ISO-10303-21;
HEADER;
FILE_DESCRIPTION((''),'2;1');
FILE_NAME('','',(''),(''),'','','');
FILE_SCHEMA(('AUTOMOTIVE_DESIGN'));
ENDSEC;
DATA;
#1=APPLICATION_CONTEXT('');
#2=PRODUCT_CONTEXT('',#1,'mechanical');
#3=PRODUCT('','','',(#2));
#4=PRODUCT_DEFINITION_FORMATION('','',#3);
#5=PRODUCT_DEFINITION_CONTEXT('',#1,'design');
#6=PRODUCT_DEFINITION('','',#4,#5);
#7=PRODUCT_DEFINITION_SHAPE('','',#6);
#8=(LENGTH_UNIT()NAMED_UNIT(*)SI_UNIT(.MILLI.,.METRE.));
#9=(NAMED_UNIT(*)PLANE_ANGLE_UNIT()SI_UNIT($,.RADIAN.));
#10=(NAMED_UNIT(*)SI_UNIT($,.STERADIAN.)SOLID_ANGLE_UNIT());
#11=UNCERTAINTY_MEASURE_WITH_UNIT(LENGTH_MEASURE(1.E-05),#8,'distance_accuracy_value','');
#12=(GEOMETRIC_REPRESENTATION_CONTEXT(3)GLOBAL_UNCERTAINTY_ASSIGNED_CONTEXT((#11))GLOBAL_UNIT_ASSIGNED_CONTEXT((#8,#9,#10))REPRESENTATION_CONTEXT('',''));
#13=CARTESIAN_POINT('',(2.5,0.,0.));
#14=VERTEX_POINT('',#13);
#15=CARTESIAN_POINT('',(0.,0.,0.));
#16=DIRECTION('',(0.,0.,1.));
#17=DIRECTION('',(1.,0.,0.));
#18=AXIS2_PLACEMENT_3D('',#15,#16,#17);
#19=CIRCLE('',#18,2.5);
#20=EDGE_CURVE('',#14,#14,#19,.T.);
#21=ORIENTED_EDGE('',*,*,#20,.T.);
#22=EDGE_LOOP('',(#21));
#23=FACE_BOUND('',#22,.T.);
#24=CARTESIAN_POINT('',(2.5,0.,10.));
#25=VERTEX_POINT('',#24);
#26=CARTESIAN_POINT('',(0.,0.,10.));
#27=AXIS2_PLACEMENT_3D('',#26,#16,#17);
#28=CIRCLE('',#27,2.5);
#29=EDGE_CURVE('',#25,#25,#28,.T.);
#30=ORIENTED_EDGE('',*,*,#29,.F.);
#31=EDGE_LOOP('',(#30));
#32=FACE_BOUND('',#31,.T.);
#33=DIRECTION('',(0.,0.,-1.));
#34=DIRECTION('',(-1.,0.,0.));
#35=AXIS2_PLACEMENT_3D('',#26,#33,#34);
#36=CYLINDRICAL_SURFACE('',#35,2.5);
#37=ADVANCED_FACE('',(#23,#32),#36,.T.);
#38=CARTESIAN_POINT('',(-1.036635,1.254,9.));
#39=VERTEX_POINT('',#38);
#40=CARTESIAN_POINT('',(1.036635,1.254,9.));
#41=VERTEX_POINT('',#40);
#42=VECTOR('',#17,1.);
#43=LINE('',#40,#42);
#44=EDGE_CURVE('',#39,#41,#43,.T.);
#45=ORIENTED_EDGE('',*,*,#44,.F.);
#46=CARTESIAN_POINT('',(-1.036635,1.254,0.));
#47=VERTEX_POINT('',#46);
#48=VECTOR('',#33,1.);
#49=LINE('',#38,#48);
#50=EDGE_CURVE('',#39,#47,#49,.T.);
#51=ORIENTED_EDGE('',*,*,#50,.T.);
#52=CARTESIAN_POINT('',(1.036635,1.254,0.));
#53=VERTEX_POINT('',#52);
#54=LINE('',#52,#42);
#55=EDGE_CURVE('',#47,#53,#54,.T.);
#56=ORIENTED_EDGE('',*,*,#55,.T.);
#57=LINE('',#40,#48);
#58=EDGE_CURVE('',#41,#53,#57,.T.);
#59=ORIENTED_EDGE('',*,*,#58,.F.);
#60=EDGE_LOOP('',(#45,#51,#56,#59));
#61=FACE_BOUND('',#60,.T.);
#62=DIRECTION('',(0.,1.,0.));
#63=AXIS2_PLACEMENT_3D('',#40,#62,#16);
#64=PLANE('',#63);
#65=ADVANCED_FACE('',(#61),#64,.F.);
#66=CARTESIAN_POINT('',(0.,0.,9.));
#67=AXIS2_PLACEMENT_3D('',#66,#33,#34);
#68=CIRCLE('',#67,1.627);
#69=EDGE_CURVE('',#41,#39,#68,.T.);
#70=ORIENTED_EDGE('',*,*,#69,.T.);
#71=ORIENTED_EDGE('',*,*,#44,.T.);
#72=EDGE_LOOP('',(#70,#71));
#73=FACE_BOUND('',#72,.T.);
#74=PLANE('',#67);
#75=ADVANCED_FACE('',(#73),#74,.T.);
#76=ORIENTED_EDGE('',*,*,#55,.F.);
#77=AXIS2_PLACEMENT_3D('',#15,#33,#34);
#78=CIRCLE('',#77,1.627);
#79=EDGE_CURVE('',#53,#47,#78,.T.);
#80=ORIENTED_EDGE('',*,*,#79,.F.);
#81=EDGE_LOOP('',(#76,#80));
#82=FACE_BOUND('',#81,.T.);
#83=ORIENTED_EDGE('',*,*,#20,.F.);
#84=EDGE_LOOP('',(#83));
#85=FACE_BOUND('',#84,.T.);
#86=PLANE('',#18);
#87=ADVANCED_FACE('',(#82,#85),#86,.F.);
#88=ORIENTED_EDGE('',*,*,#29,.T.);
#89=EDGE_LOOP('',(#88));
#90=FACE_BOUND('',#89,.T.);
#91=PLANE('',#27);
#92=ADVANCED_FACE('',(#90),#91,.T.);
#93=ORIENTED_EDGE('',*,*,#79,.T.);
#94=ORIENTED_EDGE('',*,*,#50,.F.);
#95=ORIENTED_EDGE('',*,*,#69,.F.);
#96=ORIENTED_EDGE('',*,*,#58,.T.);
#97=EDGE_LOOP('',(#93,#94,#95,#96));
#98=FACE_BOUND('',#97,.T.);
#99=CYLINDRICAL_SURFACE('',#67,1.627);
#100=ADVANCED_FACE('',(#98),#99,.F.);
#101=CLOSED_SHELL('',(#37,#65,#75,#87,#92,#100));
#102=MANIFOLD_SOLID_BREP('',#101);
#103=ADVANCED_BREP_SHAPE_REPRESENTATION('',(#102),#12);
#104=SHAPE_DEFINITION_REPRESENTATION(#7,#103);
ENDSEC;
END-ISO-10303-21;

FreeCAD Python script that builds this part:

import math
import FreeCAD as App
import Part
import Sketcher

V = App.Vector

doc = App.newDocument("Part")
body = doc.addObject("PartDesign::Body", "Body")

# Sketch on XY plane
sketch1 = body.newObject("Sketcher::SketchObject", "Sketch")
sketch1.AttachmentSupport = (doc.getObject("XY_Plane"), [""])
sketch1.MapMode = "FlatFace"
sketch1.addGeometry(Part.Circle(V(0, 0, 0), V(0, 0, 1), 2.5), False)
sketch1.addConstraint([
    Sketcher.Constraint("Coincident", 0, 3, -1, 1),
    Sketcher.Constraint("Diameter", 0, 5.0),
])
pad1 = body.newObject("PartDesign::Pad", "Pad")
pad1.Profile = sketch1
pad1.Length = 10

# Sketch on XY plane
sketch2 = body.newObject("Sketcher::SketchObject", "Sketch001")
sketch2.AttachmentSupport = (doc.getObject("XY_Plane"), [""])
sketch2.MapMode = "FlatFace"
sketch2.addGeometry([
    Part.LineSegment(V(-1, 1.3, 0), V(1, 1.3, 0)),
    Part.ArcOfCircle(Part.Circle(V(0, 0, 0), V(0, 0, 1), 1.6), math.radians(130), math.radians(410)),
], False)
sketch2.addConstraint([
    Sketcher.Constraint("Coincident", 0, 1, 1, 1),
    Sketcher.Constraint("Coincident", 1, 2, 0, 2),
    Sketcher.Constraint("Horizontal", 0),
    Sketcher.Constraint("Coincident", 1, 3, -1, 1),
    Sketcher.Constraint("Radius", 1, 1.627),
    Sketcher.Constraint("DistanceY", -1, 1, 0, 1, 1.254),
])
pocket1 = body.newObject("PartDesign::Pocket", "Pocket")
pocket1.Profile = sketch2
pocket1.Length = 9
pocket1.Reversed = True

doc.recompute()
